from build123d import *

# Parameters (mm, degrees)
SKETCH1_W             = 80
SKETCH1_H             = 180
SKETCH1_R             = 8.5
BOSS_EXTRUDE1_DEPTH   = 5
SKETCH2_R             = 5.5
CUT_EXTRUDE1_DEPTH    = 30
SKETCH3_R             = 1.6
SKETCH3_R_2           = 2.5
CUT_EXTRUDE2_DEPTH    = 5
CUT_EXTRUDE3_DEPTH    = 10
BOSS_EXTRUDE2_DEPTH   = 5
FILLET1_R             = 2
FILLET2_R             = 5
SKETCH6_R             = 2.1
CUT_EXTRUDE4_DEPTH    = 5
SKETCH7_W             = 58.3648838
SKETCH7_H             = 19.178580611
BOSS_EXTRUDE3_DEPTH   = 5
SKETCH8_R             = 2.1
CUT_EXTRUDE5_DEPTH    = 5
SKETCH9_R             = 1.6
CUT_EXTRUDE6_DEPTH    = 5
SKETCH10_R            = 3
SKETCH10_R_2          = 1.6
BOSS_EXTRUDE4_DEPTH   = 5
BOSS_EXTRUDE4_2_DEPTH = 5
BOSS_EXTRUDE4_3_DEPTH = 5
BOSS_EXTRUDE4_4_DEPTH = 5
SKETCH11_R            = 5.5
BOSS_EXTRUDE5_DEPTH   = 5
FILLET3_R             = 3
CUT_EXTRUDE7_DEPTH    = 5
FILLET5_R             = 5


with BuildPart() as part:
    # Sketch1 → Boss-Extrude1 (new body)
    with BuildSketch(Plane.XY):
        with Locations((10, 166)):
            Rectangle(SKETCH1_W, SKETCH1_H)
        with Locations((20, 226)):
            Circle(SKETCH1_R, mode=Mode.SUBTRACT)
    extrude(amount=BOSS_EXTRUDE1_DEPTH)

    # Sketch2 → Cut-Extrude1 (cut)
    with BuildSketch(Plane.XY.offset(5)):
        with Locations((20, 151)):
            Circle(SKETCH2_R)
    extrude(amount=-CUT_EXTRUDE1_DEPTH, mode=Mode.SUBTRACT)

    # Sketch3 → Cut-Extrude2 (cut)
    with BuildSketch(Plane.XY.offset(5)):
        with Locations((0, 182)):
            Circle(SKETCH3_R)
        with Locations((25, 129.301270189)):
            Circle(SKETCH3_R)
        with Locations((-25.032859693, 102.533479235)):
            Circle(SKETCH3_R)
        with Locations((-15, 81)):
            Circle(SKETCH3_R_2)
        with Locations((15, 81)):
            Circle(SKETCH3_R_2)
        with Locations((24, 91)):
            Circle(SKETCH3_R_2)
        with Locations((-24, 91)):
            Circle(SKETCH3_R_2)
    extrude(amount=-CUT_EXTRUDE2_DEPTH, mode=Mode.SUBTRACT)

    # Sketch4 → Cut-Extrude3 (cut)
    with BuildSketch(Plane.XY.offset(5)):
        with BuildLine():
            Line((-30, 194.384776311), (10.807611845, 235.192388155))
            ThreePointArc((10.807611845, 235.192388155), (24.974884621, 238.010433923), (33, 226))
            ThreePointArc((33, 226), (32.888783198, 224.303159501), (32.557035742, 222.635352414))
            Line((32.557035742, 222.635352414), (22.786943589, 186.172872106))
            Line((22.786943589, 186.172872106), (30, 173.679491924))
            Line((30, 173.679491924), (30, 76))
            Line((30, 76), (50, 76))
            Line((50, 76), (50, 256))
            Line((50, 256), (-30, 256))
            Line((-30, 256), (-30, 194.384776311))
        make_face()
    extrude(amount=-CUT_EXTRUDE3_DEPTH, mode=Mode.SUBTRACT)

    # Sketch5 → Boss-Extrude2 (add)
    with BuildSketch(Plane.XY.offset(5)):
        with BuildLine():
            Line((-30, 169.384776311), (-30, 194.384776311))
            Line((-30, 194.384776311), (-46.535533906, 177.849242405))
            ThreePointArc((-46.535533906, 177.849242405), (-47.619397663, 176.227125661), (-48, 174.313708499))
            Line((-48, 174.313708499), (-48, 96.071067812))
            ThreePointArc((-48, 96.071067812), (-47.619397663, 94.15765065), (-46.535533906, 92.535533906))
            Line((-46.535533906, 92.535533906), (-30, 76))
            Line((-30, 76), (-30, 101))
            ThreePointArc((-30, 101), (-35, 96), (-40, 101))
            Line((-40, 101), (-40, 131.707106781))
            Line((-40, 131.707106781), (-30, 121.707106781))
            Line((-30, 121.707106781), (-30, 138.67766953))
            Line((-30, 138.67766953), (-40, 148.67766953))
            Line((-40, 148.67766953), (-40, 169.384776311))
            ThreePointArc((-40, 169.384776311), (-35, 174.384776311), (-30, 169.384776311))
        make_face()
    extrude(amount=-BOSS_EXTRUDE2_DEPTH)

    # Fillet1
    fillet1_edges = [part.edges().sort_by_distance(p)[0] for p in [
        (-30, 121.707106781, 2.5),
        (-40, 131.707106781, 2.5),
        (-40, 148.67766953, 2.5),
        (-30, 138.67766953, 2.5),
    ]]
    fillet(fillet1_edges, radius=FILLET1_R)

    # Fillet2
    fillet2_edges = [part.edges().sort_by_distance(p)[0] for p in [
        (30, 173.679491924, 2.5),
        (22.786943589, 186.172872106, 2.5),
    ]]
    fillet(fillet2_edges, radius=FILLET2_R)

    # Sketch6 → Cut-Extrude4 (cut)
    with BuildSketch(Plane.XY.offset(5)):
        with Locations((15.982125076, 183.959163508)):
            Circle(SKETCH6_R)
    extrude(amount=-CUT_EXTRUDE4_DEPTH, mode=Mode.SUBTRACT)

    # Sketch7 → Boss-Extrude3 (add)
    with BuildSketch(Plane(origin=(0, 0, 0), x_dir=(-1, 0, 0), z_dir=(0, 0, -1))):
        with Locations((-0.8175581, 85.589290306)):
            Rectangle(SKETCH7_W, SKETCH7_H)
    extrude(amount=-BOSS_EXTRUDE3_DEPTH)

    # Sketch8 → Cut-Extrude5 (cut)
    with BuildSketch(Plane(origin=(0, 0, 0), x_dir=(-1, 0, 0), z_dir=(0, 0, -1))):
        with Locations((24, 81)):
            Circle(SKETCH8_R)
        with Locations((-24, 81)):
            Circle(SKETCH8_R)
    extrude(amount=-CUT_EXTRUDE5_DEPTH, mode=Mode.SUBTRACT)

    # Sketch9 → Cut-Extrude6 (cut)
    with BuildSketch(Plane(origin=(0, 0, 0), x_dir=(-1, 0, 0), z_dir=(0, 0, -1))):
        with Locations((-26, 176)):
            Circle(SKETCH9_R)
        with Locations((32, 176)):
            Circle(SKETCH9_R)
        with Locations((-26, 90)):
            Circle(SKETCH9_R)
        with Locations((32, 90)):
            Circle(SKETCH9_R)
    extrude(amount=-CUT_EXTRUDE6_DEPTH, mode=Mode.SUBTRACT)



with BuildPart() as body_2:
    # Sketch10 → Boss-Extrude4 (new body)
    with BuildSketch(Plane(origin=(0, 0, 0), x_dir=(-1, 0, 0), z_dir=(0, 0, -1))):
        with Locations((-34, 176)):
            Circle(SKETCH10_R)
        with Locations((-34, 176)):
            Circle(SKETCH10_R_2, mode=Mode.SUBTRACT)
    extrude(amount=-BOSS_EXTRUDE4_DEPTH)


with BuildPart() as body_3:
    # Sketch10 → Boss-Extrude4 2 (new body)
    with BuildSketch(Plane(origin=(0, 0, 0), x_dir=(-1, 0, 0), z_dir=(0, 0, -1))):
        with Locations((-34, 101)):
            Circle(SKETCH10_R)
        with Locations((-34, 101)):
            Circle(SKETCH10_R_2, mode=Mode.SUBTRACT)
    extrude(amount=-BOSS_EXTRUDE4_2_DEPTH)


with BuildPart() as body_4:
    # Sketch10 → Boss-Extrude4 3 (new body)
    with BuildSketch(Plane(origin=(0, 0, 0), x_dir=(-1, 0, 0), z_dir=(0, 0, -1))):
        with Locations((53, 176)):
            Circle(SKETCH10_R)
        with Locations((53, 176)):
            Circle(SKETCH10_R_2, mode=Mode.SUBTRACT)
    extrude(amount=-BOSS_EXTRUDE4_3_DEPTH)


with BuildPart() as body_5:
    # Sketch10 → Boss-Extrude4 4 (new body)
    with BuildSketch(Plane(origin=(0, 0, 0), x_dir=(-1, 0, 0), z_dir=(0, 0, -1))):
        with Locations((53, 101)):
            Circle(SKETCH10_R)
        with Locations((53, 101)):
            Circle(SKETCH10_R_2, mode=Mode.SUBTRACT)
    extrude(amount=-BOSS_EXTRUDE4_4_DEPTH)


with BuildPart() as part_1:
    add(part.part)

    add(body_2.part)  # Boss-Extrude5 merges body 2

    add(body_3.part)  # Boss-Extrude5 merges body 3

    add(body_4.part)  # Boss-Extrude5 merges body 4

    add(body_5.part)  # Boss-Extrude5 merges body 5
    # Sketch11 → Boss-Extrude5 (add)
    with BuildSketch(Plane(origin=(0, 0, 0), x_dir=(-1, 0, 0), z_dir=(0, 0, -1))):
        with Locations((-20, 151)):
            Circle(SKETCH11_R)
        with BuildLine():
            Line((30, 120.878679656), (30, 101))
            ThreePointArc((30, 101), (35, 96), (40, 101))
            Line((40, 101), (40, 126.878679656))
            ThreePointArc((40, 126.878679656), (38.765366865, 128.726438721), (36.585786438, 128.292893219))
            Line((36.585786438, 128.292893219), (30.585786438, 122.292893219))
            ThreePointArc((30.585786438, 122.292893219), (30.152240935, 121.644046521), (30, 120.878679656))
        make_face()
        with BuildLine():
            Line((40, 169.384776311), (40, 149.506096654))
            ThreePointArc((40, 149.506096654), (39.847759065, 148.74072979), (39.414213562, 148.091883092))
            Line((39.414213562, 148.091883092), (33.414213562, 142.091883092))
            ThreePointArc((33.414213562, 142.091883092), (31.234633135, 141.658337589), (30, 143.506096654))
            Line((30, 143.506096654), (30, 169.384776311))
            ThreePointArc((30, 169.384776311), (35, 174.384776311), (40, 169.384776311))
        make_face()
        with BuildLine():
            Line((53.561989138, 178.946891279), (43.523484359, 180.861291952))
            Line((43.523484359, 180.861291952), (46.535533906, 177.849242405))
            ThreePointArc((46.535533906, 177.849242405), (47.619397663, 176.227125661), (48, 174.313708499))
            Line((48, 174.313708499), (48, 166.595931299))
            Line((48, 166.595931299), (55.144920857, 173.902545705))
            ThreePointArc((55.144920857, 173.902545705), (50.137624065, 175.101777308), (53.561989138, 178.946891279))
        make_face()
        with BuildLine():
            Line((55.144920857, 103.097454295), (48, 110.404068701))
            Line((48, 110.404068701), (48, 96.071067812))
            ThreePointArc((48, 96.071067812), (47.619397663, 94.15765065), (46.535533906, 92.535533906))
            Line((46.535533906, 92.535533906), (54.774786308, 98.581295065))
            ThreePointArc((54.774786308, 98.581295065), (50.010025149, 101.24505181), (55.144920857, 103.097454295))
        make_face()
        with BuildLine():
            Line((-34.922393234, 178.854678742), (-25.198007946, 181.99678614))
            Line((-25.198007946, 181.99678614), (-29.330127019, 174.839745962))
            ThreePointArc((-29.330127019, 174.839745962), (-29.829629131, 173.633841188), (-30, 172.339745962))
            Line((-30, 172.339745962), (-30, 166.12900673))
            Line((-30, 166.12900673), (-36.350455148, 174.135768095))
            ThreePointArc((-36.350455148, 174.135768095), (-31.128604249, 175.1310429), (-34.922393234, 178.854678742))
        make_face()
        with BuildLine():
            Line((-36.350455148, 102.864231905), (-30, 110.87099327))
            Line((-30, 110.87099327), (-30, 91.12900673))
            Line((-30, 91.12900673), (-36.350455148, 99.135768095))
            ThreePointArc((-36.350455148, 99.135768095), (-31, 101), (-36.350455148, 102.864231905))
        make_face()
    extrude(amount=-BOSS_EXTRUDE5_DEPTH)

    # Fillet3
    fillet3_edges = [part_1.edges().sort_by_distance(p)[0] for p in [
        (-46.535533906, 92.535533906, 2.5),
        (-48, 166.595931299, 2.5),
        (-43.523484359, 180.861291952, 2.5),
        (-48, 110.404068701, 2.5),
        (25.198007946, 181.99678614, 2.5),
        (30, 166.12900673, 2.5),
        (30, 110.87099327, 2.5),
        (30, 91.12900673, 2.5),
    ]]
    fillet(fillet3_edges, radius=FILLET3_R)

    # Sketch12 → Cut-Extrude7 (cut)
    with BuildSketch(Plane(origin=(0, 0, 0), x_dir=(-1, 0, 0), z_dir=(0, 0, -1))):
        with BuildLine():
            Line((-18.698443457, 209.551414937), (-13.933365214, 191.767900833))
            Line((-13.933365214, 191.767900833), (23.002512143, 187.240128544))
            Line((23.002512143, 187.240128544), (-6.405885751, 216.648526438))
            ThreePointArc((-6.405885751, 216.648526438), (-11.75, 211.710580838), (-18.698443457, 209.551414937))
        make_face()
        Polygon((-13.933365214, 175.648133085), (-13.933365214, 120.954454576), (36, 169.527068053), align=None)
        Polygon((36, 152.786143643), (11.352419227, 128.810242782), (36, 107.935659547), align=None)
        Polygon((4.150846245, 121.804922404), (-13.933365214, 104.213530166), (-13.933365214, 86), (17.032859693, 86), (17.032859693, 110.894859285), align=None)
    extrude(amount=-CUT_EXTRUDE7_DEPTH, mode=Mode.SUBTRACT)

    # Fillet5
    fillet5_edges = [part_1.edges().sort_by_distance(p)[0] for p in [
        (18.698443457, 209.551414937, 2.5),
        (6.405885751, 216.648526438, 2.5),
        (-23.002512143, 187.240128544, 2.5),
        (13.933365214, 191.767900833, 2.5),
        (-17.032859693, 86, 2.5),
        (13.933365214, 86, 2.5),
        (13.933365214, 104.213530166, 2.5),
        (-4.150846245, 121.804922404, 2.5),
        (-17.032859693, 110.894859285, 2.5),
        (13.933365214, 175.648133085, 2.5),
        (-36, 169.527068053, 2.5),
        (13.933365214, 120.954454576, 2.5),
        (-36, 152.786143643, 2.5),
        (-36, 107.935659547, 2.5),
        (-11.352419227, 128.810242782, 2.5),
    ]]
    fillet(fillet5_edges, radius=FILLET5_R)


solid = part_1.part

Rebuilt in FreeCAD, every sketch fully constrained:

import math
import FreeCAD as App
import Part
import Sketcher
Q = App.Units.Quantity


def edges_at(feature, points):
    """Names of the edges that pass closest to the given points."""
    edges = feature.Shape.Edges
    near = lambda p: min(range(len(edges)), key=lambda i: edges[i].distToShape(Part.Vertex(*p))[0])
    return sorted({f"Edge{near(p) + 1}" for p in points})


def add_polygon(sketch, points):
    """Adds a closed chain of lines whose ends are joined by coincident constraints."""
    first, n = sketch.GeometryCount, len(points)
    for a, b in zip(points, points[1:] + points[:1]):
        sketch.addGeometry(Part.LineSegment(App.Vector(*a, 0), App.Vector(*b, 0)), False)
    for i in range(n):
        sketch.addConstraint(Sketcher.Constraint("Coincident", first + i, 2, first + (i + 1) % n, 1))

doc = App.newDocument("Part")
body = doc.addObject("PartDesign::Body", "Body")

# Sketch on XY plane
sketch1 = doc.addObject("Sketcher::SketchObject", "Sketch")
body.addObject(sketch1)
sketch1.AttachmentSupport = (doc.XY_Plane, [""])
sketch1.MapMode = "FlatFace"
add_polygon(sketch1, [(-30, 256), (-30, 76), (50, 76), (50, 256)])  # lines 0-3
sketch1.addGeometry(Part.Circle(App.Vector(20, 226, 0), App.Vector(0, 0, 1), 8), False)  # 4
sketch1.addConstraint(Sketcher.Constraint("Vertical", 0))
sketch1.addConstraint(Sketcher.Constraint("Horizontal", 1))
sketch1.addConstraint(Sketcher.Constraint("Vertical", 2))
sketch1.addConstraint(Sketcher.Constraint("Horizontal", 3))
sketch1.addConstraint(Sketcher.Constraint("Diameter", 4, Q("17 mm")))
sketch1.addConstraint(Sketcher.Constraint("DistanceX", 1, 1, 1, 2, Q("80 mm")))
sketch1.addConstraint(Sketcher.Constraint("DistanceY", 0, 2, 0, 1, Q("180 mm")))
sketch1.addConstraint(Sketcher.Constraint("DistanceX", -1, 1, 4, 3, Q("20 mm")))
sketch1.addConstraint(Sketcher.Constraint("DistanceY", -1, 1, 4, 3, Q("226 mm")))
sketch1.addConstraint(Sketcher.Constraint("DistanceX", 0, 2, -1, 1, Q("30 mm")))
sketch1.addConstraint(Sketcher.Constraint("DistanceY", -1, 1, 0, 2, Q("76 mm")))
pad1 = doc.addObject("PartDesign::Pad", "Pad")
body.addObject(pad1)
pad1.Profile = sketch1
pad1.Length = 5

# Sketch on XY plane
sketch2 = doc.addObject("Sketcher::SketchObject", "Sketch001")
body.addObject(sketch2)
sketch2.AttachmentSupport = (doc.XY_Plane, [""])
sketch2.MapMode = "FlatFace"
sketch2.AttachmentOffset = App.Placement(App.Vector(0, 0, 5), App.Rotation())
sketch2.addGeometry(Part.Circle(App.Vector(20, 151, 0), App.Vector(0, 0, 1), 6), False)
sketch2.addConstraint(Sketcher.Constraint("Diameter", 0, Q("11 mm")))
sketch2.addConstraint(Sketcher.Constraint("DistanceX", -1, 1, 0, 3, Q("20 mm")))
sketch2.addConstraint(Sketcher.Constraint("DistanceY", -1, 1, 0, 3, Q("151 mm")))
pocket1 = doc.addObject("PartDesign::Pocket", "Pocket")
body.addObject(pocket1)
pocket1.Profile = sketch2
pocket1.Length = 30

# Sketch on XY plane
sketch3 = doc.addObject("Sketcher::SketchObject", "Sketch002")
body.addObject(sketch3)
sketch3.AttachmentSupport = (doc.XY_Plane, [""])
sketch3.MapMode = "FlatFace"
sketch3.AttachmentOffset = App.Placement(App.Vector(0, 0, 5), App.Rotation())
sketch3.addGeometry(Part.Circle(App.Vector(0, 182, 0), App.Vector(0, 0, 1), 1.6), False)
sketch3.addGeometry(Part.Circle(App.Vector(25, 129.3, 0), App.Vector(0, 0, 1), 1.6), False)
sketch3.addGeometry(Part.Circle(App.Vector(-25, 102.5, 0), App.Vector(0, 0, 1), 1.6), False)
sketch3.addGeometry(Part.Circle(App.Vector(-15, 81, 0), App.Vector(0, 0, 1), 2.5), False)
sketch3.addGeometry(Part.Circle(App.Vector(15, 81, 0), App.Vector(0, 0, 1), 2.5), False)
sketch3.addGeometry(Part.Circle(App.Vector(24, 91, 0), App.Vector(0, 0, 1), 2.5), False)
sketch3.addGeometry(Part.Circle(App.Vector(-24, 91, 0), App.Vector(0, 0, 1), 2.5), False)
sketch3.addConstraint(Sketcher.Constraint("Equal", 0, 1))
sketch3.addConstraint(Sketcher.Constraint("Equal", 1, 2))
sketch3.addConstraint(Sketcher.Constraint("Equal", 3, 4))
sketch3.addConstraint(Sketcher.Constraint("Equal", 4, 5))
sketch3.addConstraint(Sketcher.Constraint("Equal", 5, 6))
sketch3.addConstraint(Sketcher.Constraint("Symmetric", 3, 3, 4, 3, -2))
sketch3.addConstraint(Sketcher.Constraint("Symmetric", 5, 3, 6, 3, -2))
sketch3.addConstraint(Sketcher.Constraint("PointOnObject", 0, 3, -2))
sketch3.addConstraint(Sketcher.Constraint("Diameter", 3, Q("5 mm")))
sketch3.addConstraint(Sketcher.Constraint("Diameter", 0, Q("3.2 mm")))
sketch3.addConstraint(Sketcher.Constraint("DistanceY", -1, 1, 0, 3, Q("182 mm")))
sketch3.addConstraint(Sketcher.Constraint("DistanceX", -1, 1, 1, 3, Q("25 mm")))
sketch3.addConstraint(Sketcher.Constraint("DistanceX", 3, 3, -1, 1, Q("15 mm")))
sketch3.addConstraint(Sketcher.Constraint("DistanceY", -1, 1, 3, 3, Q("81 mm")))
sketch3.addConstraint(Sketcher.Constraint("DistanceX", -1, 1, 5, 3, Q("24 mm")))
sketch3.addConstraint(Sketcher.Constraint("DistanceY", -1, 1, 5, 3, Q("91 mm")))
sketch3.addConstraint(Sketcher.Constraint("DistanceY", -1, 1, 1, 3, Q("129.30127 mm")))
sketch3.addConstraint(Sketcher.Constraint("DistanceX", 2, 3, -1, 1, Q("25.03286 mm")))
sketch3.addConstraint(Sketcher.Constraint("DistanceY", -1, 1, 2, 3, Q("102.533479 mm")))
pocket2 = doc.addObject("PartDesign::Pocket", "Pocket001")
body.addObject(pocket2)
pocket2.Profile = sketch3
pocket2.Length = 5

# Sketch on XY plane
sketch4 = doc.addObject("Sketcher::SketchObject", "Sketch003")
body.addObject(sketch4)
sketch4.AttachmentSupport = (doc.XY_Plane, [""])
sketch4.MapMode = "FlatFace"
sketch4.AttachmentOffset = App.Placement(App.Vector(0, 0, 5), App.Rotation())
sketch4.addGeometry(Part.LineSegment(App.Vector(-30, 194.4, 0), App.Vector(10.8, 235.2, 0)), False)
sketch4.addGeometry(Part.ArcOfCircle(Part.Circle(App.Vector(20, 226, 0), App.Vector(0, 0, 1), 13), math.radians(0), math.radians(135)), False)
sketch4.addGeometry(Part.ArcOfCircle(Part.Circle(App.Vector(20, 226, 0), App.Vector(0, 0, 1), 13), math.radians(-15), math.radians(0)), False)
sketch4.addGeometry(Part.LineSegment(App.Vector(32.6, 222.6, 0), App.Vector(22.8, 186.2, 0)), False)
sketch4.addGeometry(Part.LineSegment(App.Vector(22.8, 186.2, 0), App.Vector(30, 173.7, 0)), False)
sketch4.addGeometry(Part.LineSegment(App.Vector(30, 173.7, 0), App.Vector(30, 76, 0)), False)
sketch4.addGeometry(Part.LineSegment(App.Vector(30, 76, 0), App.Vector(50, 76, 0)), False)
sketch4.addGeometry(Part.LineSegment(App.Vector(50, 76, 0), App.Vector(50, 256, 0)), False)
sketch4.addGeometry(Part.LineSegment(App.Vector(50, 256, 0), App.Vector(-30, 256, 0)), False)
sketch4.addGeometry(Part.LineSegment(App.Vector(-30, 256, 0), App.Vector(-30, 194.4, 0)), False)
sketch4.addConstraint(Sketcher.Constraint("Tangent", 0, 2, 1, 2))
sketch4.addConstraint(Sketcher.Constraint("Tangent", 1, 1, 2, 2))
sketch4.addConstraint(Sketcher.Constraint("Tangent", 2, 1, 3, 1))
sketch4.addConstraint(Sketcher.Constraint("Coincident", 3, 2, 4, 1))
sketch4.addConstraint(Sketcher.Constraint("Coincident", 4, 2, 5, 1))
sketch4.addConstraint(Sketcher.Constraint("Coincident", 5, 2, 6, 1))
sketch4.addConstraint(Sketcher.Constraint("Coincident", 6, 2, 7, 1))
sketch4.addConstraint(Sketcher.Constraint("Coincident", 7, 2, 8, 1))
sketch4.addConstraint(Sketcher.Constraint("Coincident", 8, 2, 9, 1))
sketch4.addConstraint(Sketcher.Constraint("Coincident", 9, 2, 0, 1))
sketch4.addConstraint(Sketcher.Constraint("Vertical", 5))
sketch4.addConstraint(Sketcher.Constraint("Horizontal", 6))
sketch4.addConstraint(Sketcher.Constraint("Vertical", 7))
sketch4.addConstraint(Sketcher.Constraint("Horizontal", 8))
sketch4.addConstraint(Sketcher.Constraint("Vertical", 9))
sketch4.addConstraint(Sketcher.Constraint("Equal", 1, 2))
sketch4.addConstraint(Sketcher.Constraint("Horizontal", 2, 3, 1, 1))
sketch4.addConstraint(Sketcher.Constraint("Radius", 1, Q("13 mm")))
sketch4.addConstraint(Sketcher.Constraint("DistanceX", 6, 1, 6, 2, Q("20 mm")))
sketch4.addConstraint(Sketcher.Constraint("DistanceX", 8, 2, 8, 1, Q("80 mm")))
sketch4.addConstraint(Sketcher.Constraint("DistanceY", 7, 1, 7, 2, Q("180 mm")))
sketch4.addConstraint(Sketcher.Constraint("Angle", 0, Q("45 deg")))
sketch4.addConstraint(Sketcher.Constraint("Angle", 3, Q("-105 deg")))
sketch4.addConstraint(Sketcher.Constraint("Angle", 4, Q("-60 deg")))
sketch4.addConstraint(Sketcher.Constraint("DistanceX", -1, 1, 1, 3, Q("20 mm")))
sketch4.addConstraint(Sketcher.Constraint("DistanceY", -1, 1, 1, 3, Q("226 mm")))
sketch4.addConstraint(Sketcher.Constraint("DistanceX", -1, 1, 4, 2, Q("30 mm")))
sketch4.addConstraint(Sketcher.Constraint("DistanceY", -1, 1, 5, 2, Q("76 mm")))
sketch4.addConstraint(Sketcher.Constraint("DistanceY", 5, 2, 5, 1, Q("97.679492 mm")))
pocket3 = doc.addObject("PartDesign::Pocket", "Pocket002")
body.addObject(pocket3)
pocket3.Profile = sketch4
pocket3.Length = 10

# Sketch on XY plane
sketch5 = doc.addObject("Sketcher::SketchObject", "Sketch004")
body.addObject(sketch5)
sketch5.AttachmentSupport = (doc.XY_Plane, [""])
sketch5.MapMode = "FlatFace"
sketch5.AttachmentOffset = App.Placement(App.Vector(0, 0, 5), App.Rotation())
sketch5.addGeometry(Part.LineSegment(App.Vector(-30, 169.4, 0), App.Vector(-30, 194.4, 0)), False)
sketch5.addGeometry(Part.LineSegment(App.Vector(-30, 194.4, 0), App.Vector(-46.5, 177.8, 0)), False)
sketch5.addGeometry(Part.ArcOfCircle(Part.Circle(App.Vector(-43, 174.3, 0), App.Vector(0, 0, 1), 5), math.radians(135), math.radians(180)), False)
sketch5.addGeometry(Part.LineSegment(App.Vector(-48, 174.3, 0), App.Vector(-48, 96.1, 0)), False)
sketch5.addGeometry(Part.ArcOfCircle(Part.Circle(App.Vector(-43, 96.1, 0), App.Vector(0, 0, 1), 5), math.radians(180), math.radians(225)), False)
sketch5.addGeometry(Part.LineSegment(App.Vector(-46.5, 92.5, 0), App.Vector(-30, 76, 0)), False)
sketch5.addGeometry(Part.LineSegment(App.Vector(-30, 76, 0), App.Vector(-30, 101, 0)), False)
sketch5.addGeometry(Part.ArcOfCircle(Part.Circle(App.Vector(-35, 101, 0), App.Vector(0, 0, 1), 5), math.radians(180), math.radians(360)), False)
sketch5.addGeometry(Part.LineSegment(App.Vector(-40, 101, 0), App.Vector(-40, 131.7, 0)), False)
sketch5.addGeometry(Part.LineSegment(App.Vector(-40, 131.7, 0), App.Vector(-30, 121.7, 0)), False)
sketch5.addGeometry(Part.LineSegment(App.Vector(-30, 121.7, 0), App.Vector(-30, 138.7, 0)), False)
sketch5.addGeometry(Part.LineSegment(App.Vector(-30, 138.7, 0), App.Vector(-40, 148.7, 0)), False)
sketch5.addGeometry(Part.LineSegment(App.Vector(-40, 148.7, 0), App.Vector(-40, 169.4, 0)), False)
sketch5.addGeometry(Part.ArcOfCircle(Part.Circle(App.Vector(-35, 169.4, 0), App.Vector(0, 0, 1), 5), math.radians(0), math.radians(180)), False)
sketch5.addConstraint(Sketcher.Constraint("Coincident", 0, 2, 1, 1))
sketch5.addConstraint(Sketcher.Constraint("Tangent", 1, 2, 2, 1))
sketch5.addConstraint(Sketcher.Constraint("Tangent", 2, 2, 3, 1))
sketch5.addConstraint(Sketcher.Constraint("Tangent", 3, 2, 4, 1))
sketch5.addConstraint(Sketcher.Constraint("Tangent", 4, 2, 5, 1))
sketch5.addConstraint(Sketcher.Constraint("Coincident", 5, 2, 6, 1))
sketch5.addConstraint(Sketcher.Constraint("Tangent", 6, 2, 7, 2))
sketch5.addConstraint(Sketcher.Constraint("Tangent", 7, 1, 8, 1))
sketch5.addConstraint(Sketcher.Constraint("Coincident", 8, 2, 9, 1))
sketch5.addConstraint(Sketcher.Constraint("Coincident", 9, 2, 10, 1))
sketch5.addConstraint(Sketcher.Constraint("Coincident", 10, 2, 11, 1))
sketch5.addConstraint(Sketcher.Constraint("Coincident", 11, 2, 12, 1))
sketch5.addConstraint(Sketcher.Constraint("Tangent", 12, 2, 13, 2))
sketch5.addConstraint(Sketcher.Constraint("Tangent", 13, 1, 0, 1))
sketch5.addConstraint(Sketcher.Constraint("Vertical", 0))
sketch5.addConstraint(Sketcher.Constraint("Vertical", 3))
sketch5.addConstraint(Sketcher.Constraint("Vertical", 6))
sketch5.addConstraint(Sketcher.Constraint("Vertical", 8))
sketch5.addConstraint(Sketcher.Constraint("Vertical", 10))
sketch5.addConstraint(Sketcher.Constraint("Vertical", 12))
sketch5.addConstraint(Sketcher.Constraint("Equal", 2, 4))
sketch5.addConstraint(Sketcher.Constraint("Equal", 4, 7))
sketch5.addConstraint(Sketcher.Constraint("Equal", 7, 13))
sketch5.addConstraint(Sketcher.Constraint("Perpendicular", 1, 5))
sketch5.addConstraint(Sketcher.Constraint("Parallel", 5, 9))
sketch5.addConstraint(Sketcher.Constraint("Parallel", 9, 11))
sketch5.addConstraint(Sketcher.Constraint("Vertical", 7, 3, 13, 3))
sketch5.addConstraint(Sketcher.Constraint("Vertical", 1, 2, 4, 2))
sketch5.addConstraint(Sketcher.Constraint("Vertical", 6, 2, 9, 2))
sketch5.addConstraint(Sketcher.Constraint("Equal", 0, 6))
sketch5.addConstraint(Sketcher.Constraint("Radius", 2, Q("5 mm")))
sketch5.addConstraint(Sketcher.Constraint("DistanceY", 0, 1, 0, 2, Q("25 mm")))
sketch5.addConstraint(Sketcher.Constraint("DistanceX", 2, 3, -1, 1, Q("43 mm")))
sketch5.addConstraint(Sketcher.Constraint("DistanceX", 7, 3, -1, 1, Q("35 mm")))
sketch5.addConstraint(Sketcher.Constraint("DistanceY", -1, 1, 7, 3, Q("101 mm")))
sketch5.addConstraint(Sketcher.Constraint("DistanceY", 3, 2, 3, 1, Q("78.242641 mm")))
sketch5.addConstraint(Sketcher.Constraint("DistanceY", 8, 1, 8, 2, Q("30.707107 mm")))
sketch5.addConstraint(Sketcher.Constraint("DistanceY", 10, 1, 10, 2, Q("16.970563 mm")))
pad2 = doc.addObject("PartDesign::Pad", "Pad001")
body.addObject(pad2)
pad2.Profile = sketch5
pad2.Length = 5
pad2.Reversed = True
doc.recompute()

fillet = doc.addObject("PartDesign::Fillet", "Fillet")
body.addObject(fillet)
fillet.Base = (pad2, edges_at(pad2, [
    (-30, 121.707, 2.5),
    (-40, 131.707, 2.5),
    (-40, 148.678, 2.5),
    (-30, 138.678, 2.5),
]))
fillet.Radius = 2
doc.recompute()

fillet2 = doc.addObject("PartDesign::Fillet", "Fillet001")
body.addObject(fillet2)
fillet2.Base = (fillet, edges_at(fillet, [(30, 173.679, 2.5), (22.787, 186.173, 2.5)]))
fillet2.Radius = 5

# Sketch on XY plane
sketch6 = doc.addObject("Sketcher::SketchObject", "Sketch005")
body.addObject(sketch6)
sketch6.AttachmentSupport = (doc.XY_Plane, [""])
sketch6.MapMode = "FlatFace"
sketch6.AttachmentOffset = App.Placement(App.Vector(0, 0, 5), App.Rotation())
sketch6.addGeometry(Part.Circle(App.Vector(16, 184, 0), App.Vector(0, 0, 1), 2.1), False)
sketch6.addConstraint(Sketcher.Constraint("Diameter", 0, Q("4.2 mm")))
sketch6.addConstraint(Sketcher.Constraint("DistanceX", -1, 1, 0, 3, Q("15.982125 mm")))
sketch6.addConstraint(Sketcher.Constraint("DistanceY", -1, 1, 0, 3, Q("183.959164 mm")))
pocket4 = doc.addObject("PartDesign::Pocket", "Pocket003")
body.addObject(pocket4)
pocket4.Profile = sketch6
pocket4.Length = 5

# Sketch on XY plane
sketch7 = doc.addObject("Sketcher::SketchObject", "Sketch006")
body.addObject(sketch7)
sketch7.AttachmentSupport = (doc.XY_Plane, [""])
sketch7.MapMode = "FlatFace"
add_polygon(sketch7, [(30, 95), (30, 76), (-28, 76), (-28, 95)])  # lines 0-3
sketch7.addConstraint(Sketcher.Constraint("Vertical", 0))
sketch7.addConstraint(Sketcher.Constraint("Horizontal", 1))
sketch7.addConstraint(Sketcher.Constraint("Vertical", 2))
sketch7.addConstraint(Sketcher.Constraint("Horizontal", 3))
sketch7.addConstraint(Sketcher.Constraint("DistanceX", -1, 1, 0, 2, Q("30 mm")))
sketch7.addConstraint(Sketcher.Constraint("DistanceY", -1, 1, 0, 2, Q("76 mm")))
sketch7.addConstraint(Sketcher.Constraint("DistanceY", 0, 2, 0, 1, Q("19.178581 mm")))
sketch7.addConstraint(Sketcher.Constraint("DistanceX", 1, 2, 1, 1, Q("58.364884 mm")))
pad3 = doc.addObject("PartDesign::Pad", "Pad002")
body.addObject(pad3)
pad3.Profile = sketch7
pad3.Length = 5

# Sketch on XY plane
sketch8 = doc.addObject("Sketcher::SketchObject", "Sketch007")
body.addObject(sketch8)
sketch8.AttachmentSupport = (doc.XY_Plane, [""])
sketch8.MapMode = "FlatFace"
sketch8.addGeometry(Part.Circle(App.Vector(-24, 81, 0), App.Vector(0, 0, 1), 2.1), False)
sketch8.addGeometry(Part.Circle(App.Vector(24, 81, 0), App.Vector(0, 0, 1), 2.1), False)
sketch8.addConstraint(Sketcher.Constraint("Equal", 0, 1))
sketch8.addConstraint(Sketcher.Constraint("Symmetric", 0, 3, 1, 3, -2))
sketch8.addConstraint(Sketcher.Constraint("Diameter", 0, Q("4.2 mm")))
sketch8.addConstraint(Sketcher.Constraint("DistanceX", 0, 3, -1, 1, Q("24 mm")))
sketch8.addConstraint(Sketcher.Constraint("DistanceY", -1, 1, 0, 3, Q("81 mm")))
pocket5 = doc.addObject("PartDesign::Pocket", "Pocket004")
body.addObject(pocket5)
pocket5.Profile = sketch8
pocket5.Length = 5
pocket5.Reversed = True

# Sketch on XY plane
sketch9 = doc.addObject("Sketcher::SketchObject", "Sketch008")
body.addObject(sketch9)
sketch9.AttachmentSupport = (doc.XY_Plane, [""])
sketch9.MapMode = "FlatFace"
sketch9.addGeometry(Part.Circle(App.Vector(26, 176, 0), App.Vector(0, 0, 1), 1.6), False)
sketch9.addGeometry(Part.Circle(App.Vector(-32, 176, 0), App.Vector(0, 0, 1), 1.6), False)
sketch9.addGeometry(Part.Circle(App.Vector(26, 90, 0), App.Vector(0, 0, 1), 1.6), False)
sketch9.addGeometry(Part.Circle(App.Vector(-32, 90, 0), App.Vector(0, 0, 1), 1.6), False)
sketch9.addConstraint(Sketcher.Constraint("Equal", 0, 1))
sketch9.addConstraint(Sketcher.Constraint("Equal", 1, 2))
sketch9.addConstraint(Sketcher.Constraint("Equal", 2, 3))
sketch9.addConstraint(Sketcher.Constraint("Horizontal", 0, 3, 1, 3))
sketch9.addConstraint(Sketcher.Constraint("Horizontal", 2, 3, 3, 3))
sketch9.addConstraint(Sketcher.Constraint("Vertical", 0, 3, 2, 3))
sketch9.addConstraint(Sketcher.Constraint("Vertical", 1, 3, 3, 3))
sketch9.addConstraint(Sketcher.Constraint("Diameter", 0, Q("3.2 mm")))
sketch9.addConstraint(Sketcher.Constraint("DistanceX", -1, 1, 0, 3, Q("26 mm")))
sketch9.addConstraint(Sketcher.Constraint("DistanceY", -1, 1, 0, 3, Q("176 mm")))
sketch9.addConstraint(Sketcher.Constraint("DistanceX", 1, 3, -1, 1, Q("32 mm")))
sketch9.addConstraint(Sketcher.Constraint("DistanceY", -1, 1, 2, 3, Q("90 mm")))
pocket6 = doc.addObject("PartDesign::Pocket", "Pocket005")
body.addObject(pocket6)
pocket6.Profile = sketch9
pocket6.Length = 5
pocket6.Reversed = True
body2 = doc.addObject("PartDesign::Body", "Body001")

# Sketch on XY plane
sketch10 = doc.addObject("Sketcher::SketchObject", "Sketch009")
body2.addObject(sketch10)
sketch10.AttachmentSupport = (doc.getObject("XY_Plane001"), [""])
sketch10.MapMode = "FlatFace"
sketch10.addGeometry(Part.Circle(App.Vector(34, 176, 0), App.Vector(0, 0, 1), 3), False)
sketch10.addGeometry(Part.Circle(App.Vector(34, 176, 0), App.Vector(0, 0, 1), 1.6), False)
sketch10.addConstraint(Sketcher.Constraint("Coincident", 1, 3, 0, 3))
sketch10.addConstraint(Sketcher.Constraint("Diameter", 0, Q("6 mm")))
sketch10.addConstraint(Sketcher.Constraint("Diameter", 1, Q("3.2 mm")))
sketch10.addConstraint(Sketcher.Constraint("DistanceX", -1, 1, 0, 3, Q("34 mm")))
sketch10.addConstraint(Sketcher.Constraint("DistanceY", -1, 1, 0, 3, Q("176 mm")))
pad4 = doc.addObject("PartDesign::Pad", "Pad003")
body2.addObject(pad4)
pad4.Profile = sketch10
pad4.Length = 5
body3 = doc.addObject("PartDesign::Body", "Body002")

# Sketch on XY plane
sketch11 = doc.addObject("Sketcher::SketchObject", "Sketch010")
body3.addObject(sketch11)
sketch11.AttachmentSupport = (doc.getObject("XY_Plane002"), [""])
sketch11.MapMode = "FlatFace"
sketch11.addGeometry(Part.Circle(App.Vector(34, 101, 0), App.Vector(0, 0, 1), 3), False)
sketch11.addGeometry(Part.Circle(App.Vector(34, 101, 0), App.Vector(0, 0, 1), 1.6), False)
sketch11.addConstraint(Sketcher.Constraint("Coincident", 1, 3, 0, 3))
sketch11.addConstraint(Sketcher.Constraint("Diameter", 0, Q("6 mm")))
sketch11.addConstraint(Sketcher.Constraint("Diameter", 1, Q("3.2 mm")))
sketch11.addConstraint(Sketcher.Constraint("DistanceX", -1, 1, 0, 3, Q("34 mm")))
sketch11.addConstraint(Sketcher.Constraint("DistanceY", -1, 1, 0, 3, Q("101 mm")))
pad5 = doc.addObject("PartDesign::Pad", "Pad004")
body3.addObject(pad5)
pad5.Profile = sketch11
pad5.Length = 5
body4 = doc.addObject("PartDesign::Body", "Body003")

# Sketch on XY plane
sketch12 = doc.addObject("Sketcher::SketchObject", "Sketch011")
body4.addObject(sketch12)
sketch12.AttachmentSupport = (doc.getObject("XY_Plane003"), [""])
sketch12.MapMode = "FlatFace"
sketch12.addGeometry(Part.Circle(App.Vector(-53, 176, 0), App.Vector(0, 0, 1), 3), False)
sketch12.addGeometry(Part.Circle(App.Vector(-53, 176, 0), App.Vector(0, 0, 1), 1.6), False)
sketch12.addConstraint(Sketcher.Constraint("Coincident", 1, 3, 0, 3))
sketch12.addConstraint(Sketcher.Constraint("Diameter", 0, Q("6 mm")))
sketch12.addConstraint(Sketcher.Constraint("Diameter", 1, Q("3.2 mm")))
sketch12.addConstraint(Sketcher.Constraint("DistanceX", 0, 3, -1, 1, Q("53 mm")))
sketch12.addConstraint(Sketcher.Constraint("DistanceY", -1, 1, 0, 3, Q("176 mm")))
pad6 = doc.addObject("PartDesign::Pad", "Pad005")
body4.addObject(pad6)
pad6.Profile = sketch12
pad6.Length = 5
body5 = doc.addObject("PartDesign::Body", "Body004")

# Sketch on XY plane
sketch13 = doc.addObject("Sketcher::SketchObject", "Sketch012")
body5.addObject(sketch13)
sketch13.AttachmentSupport = (doc.getObject("XY_Plane004"), [""])
sketch13.MapMode = "FlatFace"
sketch13.addGeometry(Part.Circle(App.Vector(-53, 101, 0), App.Vector(0, 0, 1), 3), False)
sketch13.addGeometry(Part.Circle(App.Vector(-53, 101, 0), App.Vector(0, 0, 1), 1.6), False)
sketch13.addConstraint(Sketcher.Constraint("Coincident", 1, 3, 0, 3))
sketch13.addConstraint(Sketcher.Constraint("Diameter", 0, Q("6 mm")))
sketch13.addConstraint(Sketcher.Constraint("Diameter", 1, Q("3.2 mm")))
sketch13.addConstraint(Sketcher.Constraint("DistanceX", 0, 3, -1, 1, Q("53 mm")))
sketch13.addConstraint(Sketcher.Constraint("DistanceY", -1, 1, 0, 3, Q("101 mm")))
pad7 = doc.addObject("PartDesign::Pad", "Pad006")
body5.addObject(pad7)
pad7.Profile = sketch13
pad7.Length = 5
body.AllowCompound = True
doc.recompute()

boolean = doc.addObject("PartDesign::Boolean", "Boolean")
body.addObject(boolean)
boolean.Type = "Fuse"
boolean.addObjects([body2])
doc.recompute()

boolean2 = doc.addObject("PartDesign::Boolean", "Boolean001")
body.addObject(boolean2)
boolean2.Type = "Fuse"
boolean2.addObjects([body3])
doc.recompute()

boolean3 = doc.addObject("PartDesign::Boolean", "Boolean002")
body.addObject(boolean3)
boolean3.Type = "Fuse"
boolean3.addObjects([body4])
doc.recompute()

boolean4 = doc.addObject("PartDesign::Boolean", "Boolean003")
body.addObject(boolean4)
boolean4.Type = "Fuse"
boolean4.addObjects([body5])

# Sketch on XY plane
sketch14 = doc.addObject("Sketcher::SketchObject", "Sketch013")
body.addObject(sketch14)
sketch14.AttachmentSupport = (doc.XY_Plane, [""])
sketch14.MapMode = "FlatFace"
sketch14.addGeometry(Part.Circle(App.Vector(20, 151, 0), App.Vector(0, 0, 1), 5.5), False)
sketch14.addGeometry(Part.LineSegment(App.Vector(-30, 120.9, 0), App.Vector(-30, 101, 0)), False)
sketch14.addGeometry(Part.ArcOfCircle(Part.Circle(App.Vector(-35, 101, 0), App.Vector(0, 0, 1), 5), math.radians(180), math.radians(360)), False)
sketch14.addGeometry(Part.LineSegment(App.Vector(-40, 101, 0), App.Vector(-40, 126.9, 0)), False)
sketch14.addGeometry(Part.ArcOfCircle(Part.Circle(App.Vector(-38, 126.9, 0), App.Vector(0, 0, 1), 2), math.radians(45), math.radians(180)), False)
sketch14.addGeometry(Part.LineSegment(App.Vector(-36.6, 128.3, 0), App.Vector(-30.6, 122.3, 0)), False)
sketch14.addGeometry(Part.ArcOfCircle(Part.Circle(App.Vector(-32, 120.9, 0), App.Vector(0, 0, 1), 2), math.radians(0), math.radians(45)), False)
sketch14.addGeometry(Part.LineSegment(App.Vector(-40, 149.5, 0), App.Vector(-40, 169.4, 0)), False)
sketch14.addGeometry(Part.ArcOfCircle(Part.Circle(App.Vector(-35, 169.4, 0), App.Vector(0, 0, 1), 5), math.radians(0), math.radians(180)), False)
sketch14.addGeometry(Part.LineSegment(App.Vector(-30, 169.4, 0), App.Vector(-30, 143.5, 0)), False)
sketch14.addGeometry(Part.ArcOfCircle(Part.Circle(App.Vector(-32, 143.5, 0), App.Vector(0, 0, 1), 2), math.radians(-135), math.radians(0)), False)
sketch14.addGeometry(Part.LineSegment(App.Vector(-33.4, 142.1, 0), App.Vector(-39.4, 148.1, 0)), False)
sketch14.addGeometry(Part.ArcOfCircle(Part.Circle(App.Vector(-38, 149.5, 0), App.Vector(0, 0, 1), 2), math.radians(-180), math.radians(-135)), False)
sketch14.addGeometry(Part.LineSegment(App.Vector(-53.6, 178.9, 0), App.Vector(-43.5, 180.9, 0)), False)
sketch14.addGeometry(Part.LineSegment(App.Vector(-43.5, 180.9, 0), App.Vector(-46.5, 177.8, 0)), False)
sketch14.addGeometry(Part.ArcOfCircle(Part.Circle(App.Vector(-43, 174.3, 0), App.Vector(0, 0, 1), 5), math.radians(135), math.radians(180)), False)
sketch14.addGeometry(Part.LineSegment(App.Vector(-48, 174.3, 0), App.Vector(-48, 166.6, 0)), False)
sketch14.addGeometry(Part.LineSegment(App.Vector(-48, 166.6, 0), App.Vector(-55.1, 173.9, 0)), False)
sketch14.addGeometry(Part.ArcOfCircle(Part.Circle(App.Vector(-53, 176, 0), App.Vector(0, 0, 1), 3), math.radians(-136), math.radians(101)), False)
sketch14.addGeometry(Part.LineSegment(App.Vector(-55.1, 103.1, 0), App.Vector(-48, 110.4, 0)), False)
sketch14.addGeometry(Part.LineSegment(App.Vector(-48, 110.4, 0), App.Vector(-48, 96.1, 0)), False)
sketch14.addGeometry(Part.ArcOfCircle(Part.Circle(App.Vector(-43, 96.1, 0), App.Vector(0, 0, 1), 5), math.radians(180), math.radians(225)), False)
sketch14.addGeometry(Part.LineSegment(App.Vector(-46.5, 92.5, 0), App.Vector(-54.8, 98.6, 0)), False)
sketch14.addGeometry(Part.ArcOfCircle(Part.Circle(App.Vector(-53, 101, 0), App.Vector(0, 0, 1), 3), math.radians(-126), math.radians(136)), False)
sketch14.addGeometry(Part.LineSegment(App.Vector(25.2, 182, 0), App.Vector(34.9, 178.9, 0)), False)
sketch14.addGeometry(Part.ArcOfCircle(Part.Circle(App.Vector(34, 176, 0), App.Vector(0, 0, 1), 3), math.radians(72), math.radians(322)), False)
sketch14.addGeometry(Part.LineSegment(App.Vector(36.4, 174.1, 0), App.Vector(30, 166.1, 0)), False)
sketch14.addGeometry(Part.LineSegment(App.Vector(30, 166.1, 0), App.Vector(30, 172.3, 0)), False)
sketch14.addGeometry(Part.ArcOfCircle(Part.Circle(App.Vector(25, 172.3, 0), App.Vector(0, 0, 1), 5), math.radians(0), math.radians(30)), False)
sketch14.addGeometry(Part.LineSegment(App.Vector(29.3, 174.8, 0), App.Vector(25.2, 182, 0)), False)
sketch14.addGeometry(Part.LineSegment(App.Vector(30, 110.9, 0), App.Vector(36.4, 102.9, 0)), False)
sketch14.addGeometry(Part.ArcOfCircle(Part.Circle(App.Vector(34, 101, 0), App.Vector(0, 0, 1), 3), math.radians(38), math.radians(322)), False)
sketch14.addGeometry(Part.LineSegment(App.Vector(36.4, 99.1, 0), App.Vector(30, 91.1, 0)), False)
sketch14.addGeometry(Part.LineSegment(App.Vector(30, 91.1, 0), App.Vector(30, 110.9, 0)), False)
sketch14.addConstraint(Sketcher.Constraint("Tangent", 1, 2, 2, 2))
sketch14.addConstraint(Sketcher.Constraint("Tangent", 2, 1, 3, 1))
sketch14.addConstraint(Sketcher.Constraint("Tangent", 3, 2, 4, 2))
sketch14.addConstraint(Sketcher.Constraint("Tangent", 4, 1, 5, 1))
sketch14.addConstraint(Sketcher.Constraint("Tangent", 5, 2, 6, 2))
sketch14.addConstraint(Sketcher.Constraint("Tangent", 6, 1, 1, 1))
sketch14.addConstraint(Sketcher.Constraint("Tangent", 7, 2, 8, 2))
sketch14.addConstraint(Sketcher.Constraint("Tangent", 8, 1, 9, 1))
sketch14.addConstraint(Sketcher.Constraint("Tangent", 9, 2, 10, 2))
sketch14.addConstraint(Sketcher.Constraint("Tangent", 10, 1, 11, 1))
sketch14.addConstraint(Sketcher.Constraint("Tangent", 11, 2, 12, 2))
sketch14.addConstraint(Sketcher.Constraint("Tangent", 12, 1, 7, 1))
sketch14.addConstraint(Sketcher.Constraint("Coincident", 13, 2, 14, 1))
sketch14.addConstraint(Sketcher.Constraint("Tangent", 14, 2, 15, 1))
sketch14.addConstraint(Sketcher.Constraint("Tangent", 15, 2, 16, 1))
sketch14.addConstraint(Sketcher.Constraint("Coincident", 16, 2, 17, 1))
sketch14.addConstraint(Sketcher.Constraint("Tangent", 17, 2, 18, 1))
sketch14.addConstraint(Sketcher.Constraint("Tangent", 18, 2, 13, 1))
sketch14.addConstraint(Sketcher.Constraint("Coincident", 19, 2, 20, 1))
sketch14.addConstraint(Sketcher.Constraint("Tangent", 20, 2, 21, 1))
sketch14.addConstraint(Sketcher.Constraint("Coincident", 21, 2, 22, 1))
sketch14.addConstraint(Sketcher.Constraint("Tangent", 22, 2, 23, 1))
sketch14.addConstraint(Sketcher.Constraint("Tangent", 23, 2, 19, 1))
sketch14.addConstraint(Sketcher.Constraint("Tangent", 24, 2, 25, 1))
sketch14.addConstraint(Sketcher.Constraint("Tangent", 25, 2, 26, 1))
sketch14.addConstraint(Sketcher.Constraint("Coincident", 26, 2, 27, 1))
sketch14.addConstraint(Sketcher.Constraint("Tangent", 27, 2, 28, 1))
sketch14.addConstraint(Sketcher.Constraint("Tangent", 28, 2, 29, 1))
sketch14.addConstraint(Sketcher.Constraint("Coincident", 29, 2, 24, 1))
sketch14.addConstraint(Sketcher.Constraint("Tangent", 30, 2, 31, 1))
sketch14.addConstraint(Sketcher.Constraint("Tangent", 31, 2, 32, 1))
sketch14.addConstraint(Sketcher.Constraint("Coincident", 32, 2, 33, 1))
sketch14.addConstraint(Sketcher.Constraint("Coincident", 33, 2, 30, 1))
sketch14.addConstraint(Sketcher.Constraint("Vertical", 1))
sketch14.addConstraint(Sketcher.Constraint("Vertical", 3))
sketch14.addConstraint(Sketcher.Constraint("Vertical", 7))
sketch14.addConstraint(Sketcher.Constraint("Vertical", 9))
sketch14.addConstraint(Sketcher.Constraint("Vertical", 16))
sketch14.addConstraint(Sketcher.Constraint("Vertical", 20))
sketch14.addConstraint(Sketcher.Constraint("Vertical", 27))
sketch14.addConstraint(Sketcher.Constraint("Vertical", 33))
sketch14.addConstraint(Sketcher.Constraint("Equal", 4, 6))
sketch14.addConstraint(Sketcher.Constraint("Equal", 2, 8))
sketch14.addConstraint(Sketcher.Constraint("Equal", 6, 10))
sketch14.addConstraint(Sketcher.Constraint("Equal", 10, 12))
sketch14.addConstraint(Sketcher.Constraint("Equal", 8, 15))
sketch14.addConstraint(Sketcher.Constraint("Equal", 15, 21))
sketch14.addConstraint(Sketcher.Constraint("Equal", 18, 23))
sketch14.addConstraint(Sketcher.Constraint("Equal", 23, 25))
sketch14.addConstraint(Sketcher.Constraint("Equal", 21, 28))
sketch14.addConstraint(Sketcher.Constraint("Equal", 25, 31))
sketch14.addConstraint(Sketcher.Constraint("Parallel", 5, 11))
sketch14.addConstraint(Sketcher.Constraint("Perpendicular", 11, 14))
sketch14.addConstraint(Sketcher.Constraint("Parallel", 26, 32))
sketch14.addConstraint(Sketcher.Constraint("Horizontal", 2, 3, 23, 3))
sketch14.addConstraint(Sketcher.Constraint("Horizontal", 18, 3, 25, 3))
sketch14.addConstraint(Sketcher.Constraint("Horizontal", 23, 3, 31, 3))
sketch14.addConstraint(Sketcher.Constraint("Vertical", 2, 3, 8, 3))
sketch14.addConstraint(Sketcher.Constraint("Vertical", 15, 3, 21, 3))
sketch14.addConstraint(Sketcher.Constraint("Vertical", 18, 3, 23, 3))
sketch14.addConstraint(Sketcher.Constraint("Vertical", 25, 3, 31, 3))
sketch14.addConstraint(Sketcher.Constraint("Vertical", 14, 2, 21, 2))
sketch14.addConstraint(Sketcher.Constraint("Vertical", 17, 2, 23, 2))
sketch14.addConstraint(Sketcher.Constraint("Vertical", 25, 2, 30, 2))
sketch14.addConstraint(Sketcher.Constraint("Vertical", 27, 2, 32, 2))
sketch14.addConstraint(Sketcher.Constraint("Equal", 1, 7))
sketch14.addConstraint(Sketcher.Constraint("Equal", 13, 17))
sketch14.addConstraint(Sketcher.Constraint("Equal", 19, 22))
sketch14.addConstraint(Sketcher.Constraint("Equal", 22, 24))
sketch14.addConstraint(Sketcher.Constraint("Equal", 24, 26))
sketch14.addConstraint(Sketcher.Constraint("Diameter", 0, Q("11 mm")))
sketch14.addConstraint(Sketcher.Constraint("Radius", 2, Q("5 mm")))
sketch14.addConstraint(Sketcher.Constraint("Radius", 4, Q("2 mm")))
sketch14.addConstraint(Sketcher.Constraint("Radius", 18, Q("3 mm")))
sketch14.addConstraint(Sketcher.Constraint("Angle", 5, Q("-45 deg")))
sketch14.addConstraint(Sketcher.Constraint("Angle", 29, Q("120 deg")))
sketch14.addConstraint(Sketcher.Constraint("DistanceX", -1, 1, 0, 3, Q("20 mm")))
sketch14.addConstraint(Sketcher.Constraint("DistanceY", -1, 1, 0, 3, Q("151 mm")))
sketch14.addConstraint(Sketcher.Constraint("DistanceX", 2, 3, -1, 1, Q("35 mm")))
sketch14.addConstraint(Sketcher.Constraint("DistanceY", -1, 1, 2, 3, Q("101 mm")))
sketch14.addConstraint(Sketcher.Constraint("DistanceX", 15, 3, -1, 1, Q("43 mm")))
sketch14.addConstraint(Sketcher.Constraint("DistanceX", 18, 3, -1, 1, Q("53 mm")))
sketch14.addConstraint(Sketcher.Constraint("DistanceY", -1, 1, 18, 3, Q("176 mm")))
sketch14.addConstraint(Sketcher.Constraint("DistanceX", -1, 1, 25, 3, Q("34 mm")))
sketch14.addConstraint(Sketcher.Constraint("DistanceX", -1, 1, 28, 3, Q("25 mm")))
sketch14.addConstraint(Sketcher.Constraint("DistanceY", 20, 2, 20, 1, Q("14.333001 mm")))
sketch14.addConstraint(Sketcher.Constraint("DistanceY", 1, 2, 1, 1, Q("19.87868 mm")))
sketch14.addConstraint(Sketcher.Constraint("DistanceY", 27, 1, 27, 2, Q("6.210739 mm")))
sketch14.addConstraint(Sketcher.Constraint("DistanceY", 18, 2, 13, 2, Q("1.914401 mm")))
sketch14.addConstraint(Sketcher.Constraint("DistanceY", 12, 3, 15, 3, Q("24.807612 mm")))
pad8 = doc.addObject("PartDesign::Pad", "Pad007")
body.addObject(pad8)
pad8.Profile = sketch14
pad8.Length = 5
doc.recompute()

fillet3 = doc.addObject("PartDesign::Fillet", "Fillet002")
body.addObject(fillet3)
fillet3.Base = (pad8, edges_at(pad8, [
    (-46.536, 92.536, 2.5),
    (-48, 166.596, 2.5),
    (-43.523, 180.861, 2.5),
    (-48, 110.404, 2.5),
    (25.198, 181.997, 2.5),
    (30, 166.129, 2.5),
    (30, 110.871, 2.5),
    (30, 91.129, 2.5),
]))
fillet3.Radius = 3

# Sketch on XY plane
sketch15 = doc.addObject("Sketcher::SketchObject", "Sketch014")
body.addObject(sketch15)
sketch15.AttachmentSupport = (doc.XY_Plane, [""])
sketch15.MapMode = "FlatFace"
sketch15.addGeometry(Part.LineSegment(App.Vector(19, 210, 0), App.Vector(14, 192, 0)), False)  # 0
sketch15.addGeometry(Part.LineSegment(App.Vector(14, 192, 0), App.Vector(-23, 187, 0)), False)  # 1
sketch15.addGeometry(Part.LineSegment(App.Vector(-23, 187, 0), App.Vector(6, 217, 0)), False)  # 2
sketch15.addGeometry(Part.ArcOfCircle(Part.Circle(App.Vector(20, 226, 0), App.Vector(0, 0, 1), 17), math.radians(-145), math.radians(-95)), False)  # 3
add_polygon(sketch15, [(14, 176), (14, 121), (-36, 170)])  # lines 4-6
add_polygon(sketch15, [(-36, 153), (-11, 129), (-36, 108)])  # lines 7-9
add_polygon(sketch15, [(-4, 122), (14, 104), (14, 86), (-17, 86), (-17, 111)])  # lines 10-14
sketch15.addConstraint(Sketcher.Constraint("Coincident", 0, 2, 1, 1))
sketch15.addConstraint(Sketcher.Constraint("Coincident", 1, 2, 2, 1))
sketch15.addConstraint(Sketcher.Constraint("Coincident", 2, 2, 3, 1))
sketch15.addConstraint(Sketcher.Constraint("Coincident", 3, 2, 0, 1))
sketch15.addConstraint(Sketcher.Constraint("Vertical", 4))
sketch15.addConstraint(Sketcher.Constraint("Vertical", 9))
sketch15.addConstraint(Sketcher.Constraint("Vertical", 11))
sketch15.addConstraint(Sketcher.Constraint("Horizontal", 12))
sketch15.addConstraint(Sketcher.Constraint("Vertical", 13))
sketch15.addConstraint(Sketcher.Constraint("Parallel", 1, 6))
sketch15.addConstraint(Sketcher.Constraint("Parallel", 5, 7))
sketch15.addConstraint(Sketcher.Constraint("Parallel", 7, 10))
sketch15.addConstraint(Sketcher.Constraint("Parallel", 8, 14))
sketch15.addConstraint(Sketcher.Constraint("Vertical", 0, 2, 4, 2))
sketch15.addConstraint(Sketcher.Constraint("Vertical", 5, 2, 8, 2))
sketch15.addConstraint(Sketcher.Constraint("Vertical", 6, 2, 10, 2))
sketch15.addConstraint(Sketcher.Constraint("Radius", 3, Q("16.5 mm")))
sketch15.addConstraint(Sketcher.Constraint("Angle", 0, Q("-105 deg")))
sketch15.addConstraint(Sketcher.Constraint("Angle", 2, Q("45 deg")))
sketch15.addConstraint(Sketcher.Constraint("DistanceX", -1, 1, 3, 3, Q("20 mm")))
sketch15.addConstraint(Sketcher.Constraint("DistanceY", -1, 1, 3, 3, Q("226 mm")))
sketch15.addConstraint(Sketcher.Constraint("DistanceX", 5, 2, -1, 1, Q("36 mm")))
sketch15.addConstraint(Sketcher.Constraint("DistanceY", -1, 1, 11, 2, Q("86 mm")))
sketch15.addConstraint(Sketcher.Constraint("DistanceY", 4, 2, 4, 1, Q("54.693679 mm")))
sketch15.addConstraint(Sketcher.Constraint("DistanceY", 11, 2, 11, 1, Q("18.21353 mm")))
sketch15.addConstraint(Sketcher.Constraint("DistanceY", 13, 1, 13, 2, Q("24.894859 mm")))
sketch15.addConstraint(Sketcher.Constraint("DistanceY", -1, 1, 0, 2, Q("191.767901 mm")))
sketch15.addConstraint(Sketcher.Constraint("DistanceY", 7, 2, 9, 2, Q("23.975901 mm")))
sketch15.addConstraint(Sketcher.Constraint("DistanceY", 8, 2, 13, 2, Q("2.9592 mm")))
sketch15.addConstraint(Sketcher.Constraint("Distance", 0, Q("18.410849 mm")))
sketch15.addConstraint(Sketcher.Constraint("Distance", 1, Q("37.21236 mm")))
sketch15.addConstraint(Sketcher.Constraint("Distance", 5, Q("69.660891 mm")))
sketch15.addConstraint(Sketcher.Constraint("Distance", 10, Q("25.228868 mm")))
sketch15.addConstraint(Sketcher.Constraint("DistanceX", 12, 2, 12, 1, Q("30.966225 mm")))
sketch15.addConstraint(Sketcher.Constraint("DistanceY", -1, 1, 5, 2, Q("169.527068 mm")))
pocket7 = doc.addObject("PartDesign::Pocket", "Pocket006")
body.addObject(pocket7)
pocket7.Profile = sketch15
pocket7.Length = 5
pocket7.Reversed = True
doc.recompute()

fillet4 = doc.addObject("PartDesign::Fillet", "Fillet003")
body.addObject(fillet4)
fillet4.Base = (pocket7, edges_at(pocket7, [
    (18.698, 209.551, 2.5),
    (6.406, 216.649, 2.5),
    (-23.003, 187.24, 2.5),
    (13.933, 191.768, 2.5),
    (-17.033, 86, 2.5),
    (13.933, 86, 2.5),
    (13.933, 104.214, 2.5),
    (-4.151, 121.805, 2.5),
    (-17.033, 110.895, 2.5),
    (13.933, 175.648, 2.5),
    (-36, 169.527, 2.5),
    (13.933, 120.954, 2.5),
    (-36, 152.786, 2.5),
    (-36, 107.936, 2.5),
    (-11.352, 128.81, 2.5),
]))
fillet4.Radius = 5

doc.recompute()
